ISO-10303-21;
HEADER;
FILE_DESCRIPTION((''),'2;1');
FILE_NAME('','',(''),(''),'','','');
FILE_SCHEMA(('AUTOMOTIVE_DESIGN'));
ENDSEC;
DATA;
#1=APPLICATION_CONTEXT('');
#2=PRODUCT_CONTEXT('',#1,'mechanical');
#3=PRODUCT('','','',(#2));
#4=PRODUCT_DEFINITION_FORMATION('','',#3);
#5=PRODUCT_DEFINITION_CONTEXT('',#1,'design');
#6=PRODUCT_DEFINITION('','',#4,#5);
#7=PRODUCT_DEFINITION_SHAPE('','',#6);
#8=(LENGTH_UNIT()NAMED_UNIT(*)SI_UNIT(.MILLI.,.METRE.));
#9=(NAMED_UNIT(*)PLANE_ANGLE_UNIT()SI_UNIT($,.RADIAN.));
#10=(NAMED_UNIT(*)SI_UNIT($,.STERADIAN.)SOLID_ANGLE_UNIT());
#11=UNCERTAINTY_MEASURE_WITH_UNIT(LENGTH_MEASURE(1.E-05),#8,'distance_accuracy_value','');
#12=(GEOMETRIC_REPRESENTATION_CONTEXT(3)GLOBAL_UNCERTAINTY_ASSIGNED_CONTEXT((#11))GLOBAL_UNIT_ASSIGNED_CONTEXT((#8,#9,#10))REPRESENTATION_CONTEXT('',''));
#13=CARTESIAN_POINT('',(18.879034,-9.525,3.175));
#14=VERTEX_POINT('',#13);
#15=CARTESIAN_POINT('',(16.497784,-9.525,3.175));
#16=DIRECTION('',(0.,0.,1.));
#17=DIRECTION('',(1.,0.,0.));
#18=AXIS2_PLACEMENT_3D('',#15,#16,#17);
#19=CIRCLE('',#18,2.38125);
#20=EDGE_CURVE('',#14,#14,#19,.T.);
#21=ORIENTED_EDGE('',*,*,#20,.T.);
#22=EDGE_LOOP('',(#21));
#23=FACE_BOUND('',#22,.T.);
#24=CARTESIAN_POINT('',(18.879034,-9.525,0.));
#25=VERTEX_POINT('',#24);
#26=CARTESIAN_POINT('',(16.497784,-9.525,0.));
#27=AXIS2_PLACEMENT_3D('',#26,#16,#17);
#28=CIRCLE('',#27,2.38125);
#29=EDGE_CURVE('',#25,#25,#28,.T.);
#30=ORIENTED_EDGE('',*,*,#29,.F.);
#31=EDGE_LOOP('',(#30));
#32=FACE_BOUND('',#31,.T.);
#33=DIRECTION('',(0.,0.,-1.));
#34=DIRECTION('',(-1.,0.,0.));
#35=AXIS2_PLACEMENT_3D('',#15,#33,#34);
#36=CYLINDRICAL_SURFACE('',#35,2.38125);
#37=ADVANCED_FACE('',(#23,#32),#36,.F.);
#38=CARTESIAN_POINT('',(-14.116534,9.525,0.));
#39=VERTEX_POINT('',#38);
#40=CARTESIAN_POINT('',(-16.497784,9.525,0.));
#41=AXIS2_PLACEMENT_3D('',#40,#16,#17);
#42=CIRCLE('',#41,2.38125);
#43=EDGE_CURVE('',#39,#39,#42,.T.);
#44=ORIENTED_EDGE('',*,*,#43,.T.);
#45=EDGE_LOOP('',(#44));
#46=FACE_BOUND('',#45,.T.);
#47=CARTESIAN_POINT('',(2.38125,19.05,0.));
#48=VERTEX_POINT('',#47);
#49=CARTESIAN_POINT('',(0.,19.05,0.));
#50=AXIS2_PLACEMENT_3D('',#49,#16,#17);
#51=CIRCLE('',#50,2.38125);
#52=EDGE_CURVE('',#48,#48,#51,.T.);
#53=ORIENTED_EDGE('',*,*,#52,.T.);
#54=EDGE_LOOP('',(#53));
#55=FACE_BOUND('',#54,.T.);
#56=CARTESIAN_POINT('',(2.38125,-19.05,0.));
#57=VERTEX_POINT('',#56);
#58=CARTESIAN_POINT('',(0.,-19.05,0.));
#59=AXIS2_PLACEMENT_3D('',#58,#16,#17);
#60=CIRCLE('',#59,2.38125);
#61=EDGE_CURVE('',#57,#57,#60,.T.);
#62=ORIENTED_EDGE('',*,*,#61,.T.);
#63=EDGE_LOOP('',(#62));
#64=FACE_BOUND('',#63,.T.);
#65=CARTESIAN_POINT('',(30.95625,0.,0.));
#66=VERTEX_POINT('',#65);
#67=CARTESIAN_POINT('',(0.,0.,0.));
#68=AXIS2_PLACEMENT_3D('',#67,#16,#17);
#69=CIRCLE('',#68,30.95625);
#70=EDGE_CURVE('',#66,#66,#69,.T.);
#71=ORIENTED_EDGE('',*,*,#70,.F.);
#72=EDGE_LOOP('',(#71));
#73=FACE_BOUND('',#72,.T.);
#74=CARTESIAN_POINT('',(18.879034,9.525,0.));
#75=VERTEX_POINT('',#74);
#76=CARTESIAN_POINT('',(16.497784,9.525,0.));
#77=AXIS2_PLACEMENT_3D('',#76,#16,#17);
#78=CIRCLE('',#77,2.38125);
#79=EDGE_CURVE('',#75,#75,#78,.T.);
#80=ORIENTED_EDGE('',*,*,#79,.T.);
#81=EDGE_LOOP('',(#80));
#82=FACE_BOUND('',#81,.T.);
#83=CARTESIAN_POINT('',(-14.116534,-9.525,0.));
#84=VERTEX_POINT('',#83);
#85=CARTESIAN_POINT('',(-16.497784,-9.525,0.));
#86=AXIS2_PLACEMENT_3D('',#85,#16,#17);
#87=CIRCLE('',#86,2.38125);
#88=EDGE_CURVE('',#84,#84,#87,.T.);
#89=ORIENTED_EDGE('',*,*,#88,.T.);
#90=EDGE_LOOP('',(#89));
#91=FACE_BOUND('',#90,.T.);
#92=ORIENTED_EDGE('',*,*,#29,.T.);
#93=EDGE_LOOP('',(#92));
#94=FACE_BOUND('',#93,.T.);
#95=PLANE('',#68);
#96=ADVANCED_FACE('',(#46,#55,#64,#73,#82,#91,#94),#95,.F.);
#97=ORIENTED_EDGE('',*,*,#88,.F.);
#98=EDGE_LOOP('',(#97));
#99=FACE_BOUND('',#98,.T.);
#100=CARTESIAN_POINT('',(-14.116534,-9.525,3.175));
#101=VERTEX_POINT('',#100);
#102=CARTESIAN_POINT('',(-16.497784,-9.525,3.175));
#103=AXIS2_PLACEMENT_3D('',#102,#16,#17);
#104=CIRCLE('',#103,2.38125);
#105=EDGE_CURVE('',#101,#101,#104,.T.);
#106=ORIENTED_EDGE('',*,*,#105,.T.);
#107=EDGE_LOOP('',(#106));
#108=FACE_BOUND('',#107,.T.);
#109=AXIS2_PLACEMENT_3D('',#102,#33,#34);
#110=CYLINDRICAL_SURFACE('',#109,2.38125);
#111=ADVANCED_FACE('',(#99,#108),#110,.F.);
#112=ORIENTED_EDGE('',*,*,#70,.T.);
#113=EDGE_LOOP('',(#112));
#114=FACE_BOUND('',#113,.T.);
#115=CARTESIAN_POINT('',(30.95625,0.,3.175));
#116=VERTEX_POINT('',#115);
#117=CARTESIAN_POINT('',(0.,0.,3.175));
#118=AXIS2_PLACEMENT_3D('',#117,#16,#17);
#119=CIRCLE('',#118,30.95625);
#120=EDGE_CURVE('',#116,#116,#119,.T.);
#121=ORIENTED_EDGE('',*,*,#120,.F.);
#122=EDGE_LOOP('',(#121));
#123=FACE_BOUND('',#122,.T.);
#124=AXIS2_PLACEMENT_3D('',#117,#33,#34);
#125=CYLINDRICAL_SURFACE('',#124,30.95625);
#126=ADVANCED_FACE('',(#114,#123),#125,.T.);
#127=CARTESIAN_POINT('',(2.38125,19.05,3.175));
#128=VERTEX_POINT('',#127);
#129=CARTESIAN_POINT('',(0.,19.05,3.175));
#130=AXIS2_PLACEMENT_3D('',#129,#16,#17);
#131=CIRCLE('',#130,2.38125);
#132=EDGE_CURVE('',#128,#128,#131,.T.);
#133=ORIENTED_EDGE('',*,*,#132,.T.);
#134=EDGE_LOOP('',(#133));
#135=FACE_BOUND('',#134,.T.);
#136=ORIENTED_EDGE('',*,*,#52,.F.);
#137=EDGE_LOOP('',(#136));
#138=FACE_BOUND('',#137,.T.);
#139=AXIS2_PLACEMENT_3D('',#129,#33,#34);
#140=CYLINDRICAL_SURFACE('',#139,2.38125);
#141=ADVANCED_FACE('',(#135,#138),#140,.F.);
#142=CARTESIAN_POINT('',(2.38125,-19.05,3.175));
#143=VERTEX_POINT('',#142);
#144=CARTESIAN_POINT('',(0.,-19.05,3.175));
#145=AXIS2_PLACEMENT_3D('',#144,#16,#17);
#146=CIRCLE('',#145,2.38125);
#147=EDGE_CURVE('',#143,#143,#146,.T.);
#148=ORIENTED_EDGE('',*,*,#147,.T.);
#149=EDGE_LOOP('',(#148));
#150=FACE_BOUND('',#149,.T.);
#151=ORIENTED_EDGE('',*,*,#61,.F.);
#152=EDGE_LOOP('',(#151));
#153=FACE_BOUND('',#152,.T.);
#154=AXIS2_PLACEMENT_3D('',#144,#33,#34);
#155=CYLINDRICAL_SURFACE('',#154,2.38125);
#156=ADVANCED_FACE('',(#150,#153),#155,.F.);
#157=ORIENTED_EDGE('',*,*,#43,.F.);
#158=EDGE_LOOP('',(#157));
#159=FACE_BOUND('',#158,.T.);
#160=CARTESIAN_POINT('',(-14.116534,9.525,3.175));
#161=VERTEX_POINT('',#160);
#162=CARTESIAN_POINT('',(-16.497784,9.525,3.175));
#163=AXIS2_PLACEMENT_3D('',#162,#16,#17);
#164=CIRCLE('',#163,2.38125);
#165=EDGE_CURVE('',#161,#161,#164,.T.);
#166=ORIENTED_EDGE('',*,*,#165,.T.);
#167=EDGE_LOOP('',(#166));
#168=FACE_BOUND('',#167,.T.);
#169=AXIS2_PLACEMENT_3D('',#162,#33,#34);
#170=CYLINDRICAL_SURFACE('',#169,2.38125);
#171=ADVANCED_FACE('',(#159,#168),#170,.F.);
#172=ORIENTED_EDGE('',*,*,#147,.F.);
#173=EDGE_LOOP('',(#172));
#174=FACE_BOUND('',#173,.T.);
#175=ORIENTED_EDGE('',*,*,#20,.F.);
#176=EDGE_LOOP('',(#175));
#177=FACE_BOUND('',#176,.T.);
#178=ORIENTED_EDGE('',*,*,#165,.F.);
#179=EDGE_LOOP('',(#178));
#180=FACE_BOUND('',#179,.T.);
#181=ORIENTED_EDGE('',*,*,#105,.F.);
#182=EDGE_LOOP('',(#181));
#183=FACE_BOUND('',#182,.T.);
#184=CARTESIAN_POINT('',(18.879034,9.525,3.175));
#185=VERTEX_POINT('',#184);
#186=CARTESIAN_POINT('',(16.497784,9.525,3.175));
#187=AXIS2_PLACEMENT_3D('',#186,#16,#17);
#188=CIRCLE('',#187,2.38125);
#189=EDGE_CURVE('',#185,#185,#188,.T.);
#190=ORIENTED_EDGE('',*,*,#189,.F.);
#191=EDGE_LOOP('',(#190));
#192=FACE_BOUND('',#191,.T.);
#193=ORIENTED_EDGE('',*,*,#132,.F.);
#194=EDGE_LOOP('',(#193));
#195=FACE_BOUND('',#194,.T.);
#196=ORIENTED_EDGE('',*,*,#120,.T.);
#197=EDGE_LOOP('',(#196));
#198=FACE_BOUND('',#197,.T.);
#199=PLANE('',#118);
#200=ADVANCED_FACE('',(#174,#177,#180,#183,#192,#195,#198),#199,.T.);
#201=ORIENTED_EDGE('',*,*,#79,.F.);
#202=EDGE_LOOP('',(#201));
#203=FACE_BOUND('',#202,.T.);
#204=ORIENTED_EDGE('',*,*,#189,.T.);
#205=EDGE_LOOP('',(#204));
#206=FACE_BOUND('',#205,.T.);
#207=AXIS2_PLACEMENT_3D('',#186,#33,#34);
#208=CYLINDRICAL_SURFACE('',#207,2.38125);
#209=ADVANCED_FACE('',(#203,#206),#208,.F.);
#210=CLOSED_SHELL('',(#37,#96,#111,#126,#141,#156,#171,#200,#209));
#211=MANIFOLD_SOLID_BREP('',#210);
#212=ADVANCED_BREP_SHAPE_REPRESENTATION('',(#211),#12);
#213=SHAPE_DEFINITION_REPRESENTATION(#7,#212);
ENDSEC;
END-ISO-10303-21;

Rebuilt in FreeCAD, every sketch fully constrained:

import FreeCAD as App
import Part
import Sketcher
from FreeCAD import Vector
Q = App.Units.Quantity

doc = App.newDocument("Part")
body = doc.addObject("PartDesign::Body", "Body")

# Sketch on XY plane
sketch1 = doc.addObject("Sketcher::SketchObject", "Sketch")
body.addObject(sketch1)
sketch1.AttachmentSupport = (doc.XY_Plane, [""])
sketch1.MapMode = "FlatFace"
sketch1.addGeometry([
    Part.Circle(Vector(0, 0, 0), Vector(0, 0, 1), 31),  # 0
    Part.Circle(Vector(-16.5, -9.5, 0), Vector(0, 0, 1), 2.4),  # 1
    Part.Circle(Vector(0, -19.1, 0), Vector(0, 0, 1), 2.4),  # 2
    Part.Circle(Vector(16.5, -9.5, 0), Vector(0, 0, 1), 2.4),  # 3
    Part.Circle(Vector(-16.5, 9.5, 0), Vector(0, 0, 1), 2.4),  # 4
    Part.Circle(Vector(16.5, 9.5, 0), Vector(0, 0, 1), 2.4),  # 5
    Part.Circle(Vector(0, 19.1, 0), Vector(0, 0, 1), 2.4),  # 6
], False)
sketch1.addConstraint([
    Sketcher.Constraint("Coincident", 0, 3, -1, 1),
    Sketcher.Constraint("Equal", 1, 2),
    Sketcher.Constraint("Equal", 2, 3),
    Sketcher.Constraint("Equal", 3, 4),
    Sketcher.Constraint("Equal", 4, 5),
    Sketcher.Constraint("Equal", 5, 6),
    Sketcher.Constraint("Symmetric", 3, 3, 4, 3, -1, 1),
    Sketcher.Constraint("Symmetric", 1, 3, 5, 3, -1, 1),
    Sketcher.Constraint("Symmetric", 2, 3, 6, 3, -1, 1),
    Sketcher.Constraint("Symmetric", 1, 3, 3, 3, -2),
    Sketcher.Constraint("PointOnObject", 2, 3, -2),
    Sketcher.Constraint("Diameter", 0, Q("2.4375 in")),
    Sketcher.Constraint("Diameter", 1, Q("0.1875 in")),
    Sketcher.Constraint("DistanceY", 2, 3, -1, 1, Q("0.75 in")),
    Sketcher.Constraint("DistanceY", 1, 3, 4, 3, Q("0.75 in")),
    Sketcher.Constraint("DistanceX", 1, 3, -1, 1, 16.497784),
])
pad1 = doc.addObject("PartDesign::Pad", "Pad")
body.addObject(pad1)
pad1.Profile = sketch1
pad1.Length = Q("0.125 in")

doc.recompute()
